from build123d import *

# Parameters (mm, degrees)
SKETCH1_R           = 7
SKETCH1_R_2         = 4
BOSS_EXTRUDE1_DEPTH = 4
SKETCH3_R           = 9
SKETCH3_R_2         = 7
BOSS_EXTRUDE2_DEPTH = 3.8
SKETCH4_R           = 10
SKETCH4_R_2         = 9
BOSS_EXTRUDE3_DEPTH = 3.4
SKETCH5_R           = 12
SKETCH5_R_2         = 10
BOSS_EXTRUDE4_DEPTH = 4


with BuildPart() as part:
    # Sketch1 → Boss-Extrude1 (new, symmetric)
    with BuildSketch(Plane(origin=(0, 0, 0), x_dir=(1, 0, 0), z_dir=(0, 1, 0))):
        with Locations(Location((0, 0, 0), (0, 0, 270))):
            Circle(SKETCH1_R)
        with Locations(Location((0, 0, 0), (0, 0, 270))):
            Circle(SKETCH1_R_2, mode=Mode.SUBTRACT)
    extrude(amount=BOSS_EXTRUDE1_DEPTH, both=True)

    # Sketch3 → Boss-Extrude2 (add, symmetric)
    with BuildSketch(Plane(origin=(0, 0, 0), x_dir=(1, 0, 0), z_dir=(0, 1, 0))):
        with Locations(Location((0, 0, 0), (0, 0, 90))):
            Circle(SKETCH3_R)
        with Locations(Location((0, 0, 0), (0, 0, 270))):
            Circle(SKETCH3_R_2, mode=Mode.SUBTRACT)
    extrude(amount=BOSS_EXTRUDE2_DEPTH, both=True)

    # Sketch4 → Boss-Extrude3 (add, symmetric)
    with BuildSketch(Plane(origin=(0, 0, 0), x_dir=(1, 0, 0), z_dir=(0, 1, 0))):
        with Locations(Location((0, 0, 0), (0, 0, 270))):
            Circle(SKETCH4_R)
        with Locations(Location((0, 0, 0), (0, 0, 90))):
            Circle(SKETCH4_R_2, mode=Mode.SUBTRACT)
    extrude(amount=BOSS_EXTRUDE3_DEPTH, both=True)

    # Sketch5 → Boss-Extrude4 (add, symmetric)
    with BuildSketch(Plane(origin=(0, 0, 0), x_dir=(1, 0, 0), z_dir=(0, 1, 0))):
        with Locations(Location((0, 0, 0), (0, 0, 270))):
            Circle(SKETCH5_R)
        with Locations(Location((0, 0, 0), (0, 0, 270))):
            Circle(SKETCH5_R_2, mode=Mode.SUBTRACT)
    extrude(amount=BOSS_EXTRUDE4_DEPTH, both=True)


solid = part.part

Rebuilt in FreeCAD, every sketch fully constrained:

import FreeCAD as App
import Part
import Sketcher

V = App.Vector

doc = App.newDocument("Part")
body = doc.addObject("PartDesign::Body", "Body")

# Sketch on XZ plane
sketch1 = doc.addObject("Sketcher::SketchObject", "Sketch")
body.addObject(sketch1)
sketch1.AttachmentSupport = (doc.XZ_Plane, [""])
sketch1.MapMode = "FlatFace"
sketch1.addGeometry(Part.Circle(V(0, 0, 0), V(0, 0, 1), 7), False)
sketch1.addGeometry(Part.Circle(V(0, 0, 0), V(0, 0, 1), 4), False)
sketch1.addConstraint(Sketcher.Constraint("Coincident", 0, 3, -1, 1))
sketch1.addConstraint(Sketcher.Constraint("Coincident", 1, 3, -1, 1))
sketch1.addConstraint(Sketcher.Constraint("Diameter", 0, 14.0))
sketch1.addConstraint(Sketcher.Constraint("Diameter", 1, 8.0))
pad1 = doc.addObject("PartDesign::Pad", "Pad")
body.addObject(pad1)
pad1.Profile = sketch1
pad1.Length = 8
pad1.Midplane = True

# Sketch on XZ plane
sketch2 = doc.addObject("Sketcher::SketchObject", "Sketch001")
body.addObject(sketch2)
sketch2.AttachmentSupport = (doc.XZ_Plane, [""])
sketch2.MapMode = "FlatFace"
sketch2.addGeometry(Part.Circle(V(0, 0, 0), V(0, 0, 1), 9), False)
sketch2.addGeometry(Part.Circle(V(0, 0, 0), V(0, 0, 1), 7), False)
sketch2.addConstraint(Sketcher.Constraint("Coincident", 0, 3, -1, 1))
sketch2.addConstraint(Sketcher.Constraint("Coincident", 1, 3, -1, 1))
sketch2.addConstraint(Sketcher.Constraint("Diameter", 0, 18.0))
sketch2.addConstraint(Sketcher.Constraint("Diameter", 1, 14.0))
pad2 = doc.addObject("PartDesign::Pad", "Pad001")
body.addObject(pad2)
pad2.Profile = sketch2
pad2.Length = 7.6
pad2.Midplane = True

# Sketch on XZ plane
sketch3 = doc.addObject("Sketcher::SketchObject", "Sketch002")
body.addObject(sketch3)
sketch3.AttachmentSupport = (doc.XZ_Plane, [""])
sketch3.MapMode = "FlatFace"
sketch3.addGeometry(Part.Circle(V(0, 0, 0), V(0, 0, 1), 10), False)
sketch3.addGeometry(Part.Circle(V(0, 0, 0), V(0, 0, 1), 9), False)
sketch3.addConstraint(Sketcher.Constraint("Coincident", 0, 3, -1, 1))
sketch3.addConstraint(Sketcher.Constraint("Coincident", 1, 3, -1, 1))
sketch3.addConstraint(Sketcher.Constraint("Diameter", 0, 20.0))
sketch3.addConstraint(Sketcher.Constraint("Diameter", 1, 18.0))
pad3 = doc.addObject("PartDesign::Pad", "Pad002")
body.addObject(pad3)
pad3.Profile = sketch3
pad3.Length = 6.8
pad3.Midplane = True

# Sketch on XZ plane
sketch4 = doc.addObject("Sketcher::SketchObject", "Sketch003")
body.addObject(sketch4)
sketch4.AttachmentSupport = (doc.XZ_Plane, [""])
sketch4.MapMode = "FlatFace"
sketch4.addGeometry(Part.Circle(V(0, 0, 0), V(0, 0, 1), 12), False)
sketch4.addGeometry(Part.Circle(V(0, 0, 0), V(0, 0, 1), 10), False)
sketch4.addConstraint(Sketcher.Constraint("Coincident", 0, 3, -1, 1))
sketch4.addConstraint(Sketcher.Constraint("Coincident", 1, 3, -1, 1))
sketch4.addConstraint(Sketcher.Constraint("Diameter", 0, 24.0))
sketch4.addConstraint(Sketcher.Constraint("Diameter", 1, 20.0))
pad4 = doc.addObject("PartDesign::Pad", "Pad003")
body.addObject(pad4)
pad4.Profile = sketch4
pad4.Length = 8
pad4.Midplane = True

doc.recompute()
